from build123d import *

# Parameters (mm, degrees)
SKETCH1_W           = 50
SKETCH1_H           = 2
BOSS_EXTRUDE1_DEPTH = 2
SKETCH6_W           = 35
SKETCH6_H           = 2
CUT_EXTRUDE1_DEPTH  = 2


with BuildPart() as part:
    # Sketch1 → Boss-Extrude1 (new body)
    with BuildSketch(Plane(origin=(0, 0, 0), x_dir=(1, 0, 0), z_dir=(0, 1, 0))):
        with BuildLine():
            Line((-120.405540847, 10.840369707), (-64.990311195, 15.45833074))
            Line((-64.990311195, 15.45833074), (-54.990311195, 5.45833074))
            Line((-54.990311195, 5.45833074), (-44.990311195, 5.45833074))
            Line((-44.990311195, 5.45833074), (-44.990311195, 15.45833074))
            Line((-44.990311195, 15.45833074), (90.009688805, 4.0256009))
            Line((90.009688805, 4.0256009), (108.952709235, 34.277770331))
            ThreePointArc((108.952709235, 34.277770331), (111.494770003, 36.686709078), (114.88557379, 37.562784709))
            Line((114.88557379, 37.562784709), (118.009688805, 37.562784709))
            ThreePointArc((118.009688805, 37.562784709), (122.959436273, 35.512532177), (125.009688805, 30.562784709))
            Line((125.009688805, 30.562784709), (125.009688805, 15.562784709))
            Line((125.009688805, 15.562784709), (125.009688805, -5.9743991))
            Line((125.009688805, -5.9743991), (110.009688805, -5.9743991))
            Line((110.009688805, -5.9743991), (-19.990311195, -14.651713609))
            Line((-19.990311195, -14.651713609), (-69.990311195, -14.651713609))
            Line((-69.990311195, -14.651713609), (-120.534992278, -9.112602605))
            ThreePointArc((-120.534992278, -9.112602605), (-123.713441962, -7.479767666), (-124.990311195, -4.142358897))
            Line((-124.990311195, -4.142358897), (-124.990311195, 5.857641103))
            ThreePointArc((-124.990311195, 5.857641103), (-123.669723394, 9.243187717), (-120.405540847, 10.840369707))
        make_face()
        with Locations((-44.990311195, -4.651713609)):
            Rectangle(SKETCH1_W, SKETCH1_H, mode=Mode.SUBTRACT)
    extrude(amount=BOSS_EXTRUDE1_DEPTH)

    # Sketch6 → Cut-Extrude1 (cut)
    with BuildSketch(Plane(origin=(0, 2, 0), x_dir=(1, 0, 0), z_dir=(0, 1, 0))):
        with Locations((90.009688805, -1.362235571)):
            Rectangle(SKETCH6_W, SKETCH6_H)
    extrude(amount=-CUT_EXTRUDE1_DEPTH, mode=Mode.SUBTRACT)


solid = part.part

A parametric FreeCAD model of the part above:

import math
import FreeCAD as App
import Part
import Sketcher
from FreeCAD import Vector
Q = App.Units.Quantity


def add_polygon(sketch, points):
    """Adds a closed chain of lines whose ends are joined by coincident constraints."""
    first, n = sketch.GeometryCount, len(points)
    for a, b in zip(points, points[1:] + points[:1]):
        sketch.addGeometry(Part.LineSegment(App.Vector(*a, 0), App.Vector(*b, 0)), False)
    for i in range(n):
        sketch.addConstraint(Sketcher.Constraint("Coincident", first + i, 2, first + (i + 1) % n, 1))

doc = App.newDocument("Part")
body = doc.addObject("PartDesign::Body", "Body")

sketch1 = body.newObject("Sketcher::SketchObject", "Sketch")
sketch1.AttachmentSupport = (doc.getObject("XZ_Plane"), [""])
sketch1.MapMode = "FlatFace"
sketch1.addGeometry(Part.LineSegment(Vector(-64.990311, -15.458331, 0), Vector(-120.405541, -10.84037, 0)), False)
sketch1.addGeometry(Part.ArcOfCircle(Part.Circle(Vector(-119.990311, -5.857641, 0), Vector(0, 0, 1), 5), math.radians(180), math.radians(265.236332)), False)
sketch1.addGeometry(Part.LineSegment(Vector(-124.990311, -5.857641, 0), Vector(-124.990311, 4.142359, 0)), False)
sketch1.addGeometry(Part.ArcOfCircle(Part.Circle(Vector(-119.990311, 4.142359, 0), Vector(0, 0, 1), 5), math.radians(96.253997), math.radians(180)), False)
sketch1.addGeometry(Part.LineSegment(Vector(-120.534992, 9.112603, 0), Vector(-69.990311, 14.651714, 0)), False)
sketch1.addGeometry(Part.LineSegment(Vector(-69.990311, 14.651714, 0), Vector(-19.990311, 14.651714, 0)), False)
sketch1.addGeometry(Part.LineSegment(Vector(-19.990311, 14.651714, 0), Vector(110.009689, 5.974399, 0)), False)
sketch1.addGeometry(Part.LineSegment(Vector(110.009689, 5.974399, 0), Vector(125.009689, 5.974399, 0)), False)
sketch1.addGeometry(Part.LineSegment(Vector(125.009689, 5.974399, 0), Vector(125.009689, -30.562785, 0)), False)
sketch1.addGeometry(Part.ArcOfCircle(Part.Circle(Vector(118.009689, -30.562785, 0), Vector(0, 0, 1), 7), math.radians(-90), math.radians(0)), False)
sketch1.addGeometry(Part.LineSegment(Vector(118.009689, -37.562785, 0), Vector(114.885574, -37.562785, 0)), False)
sketch1.addGeometry(Part.ArcOfCircle(Part.Circle(Vector(114.885574, -30.562785, 0), Vector(0, 0, 1), 7), math.radians(-147.94641), math.radians(-90)), False)
sketch1.addGeometry(Part.LineSegment(Vector(108.952709, -34.27777, 0), Vector(90.009689, -4.025601, 0)), False)
sketch1.addGeometry(Part.LineSegment(Vector(90.009689, -4.025601, 0), Vector(-44.990311, -15.458331, 0)), False)
sketch1.addGeometry(Part.LineSegment(Vector(-44.990311, -15.458331, 0), Vector(-44.990311, -5.458331, 0)), False)
sketch1.addGeometry(Part.LineSegment(Vector(-44.990311, -5.458331, 0), Vector(-54.990311, -5.458331, 0)), False)
sketch1.addGeometry(Part.LineSegment(Vector(-54.990311, -5.458331, 0), Vector(-64.990311, -15.458331, 0)), False)
add_polygon(sketch1, [(-69.990311, 5.651714), (-69.990311, 3.651714), (-19.990311, 3.651714), (-19.990311, 5.651714)])
sketch1.addConstraint([
    Sketcher.Constraint("Tangent", 0, 2, 1, 2),
    Sketcher.Constraint("Tangent", 1, 1, 2, 1),
    Sketcher.Constraint("Tangent", 2, 2, 3, 2),
    Sketcher.Constraint("Tangent", 3, 1, 4, 1),
    Sketcher.Constraint("Coincident", 4, 2, 5, 1),
    Sketcher.Constraint("Coincident", 5, 2, 6, 1),
    Sketcher.Constraint("Coincident", 6, 2, 7, 1),
    Sketcher.Constraint("Coincident", 7, 2, 8, 1),
    Sketcher.Constraint("Tangent", 8, 2, 9, 2),
    Sketcher.Constraint("Tangent", 9, 1, 10, 1),
    Sketcher.Constraint("Tangent", 10, 2, 11, 2),
    Sketcher.Constraint("Tangent", 11, 1, 12, 1),
    Sketcher.Constraint("Coincident", 12, 2, 13, 1),
    Sketcher.Constraint("Coincident", 13, 2, 14, 1),
    Sketcher.Constraint("Coincident", 14, 2, 15, 1),
    Sketcher.Constraint("Coincident", 15, 2, 16, 1),
    Sketcher.Constraint("Coincident", 16, 2, 0, 1),
    Sketcher.Constraint("Vertical", 2),
    Sketcher.Constraint("Horizontal", 5),
    Sketcher.Constraint("Horizontal", 7),
    Sketcher.Constraint("Vertical", 8),
    Sketcher.Constraint("Horizontal", 10),
    Sketcher.Constraint("Vertical", 14),
    Sketcher.Constraint("Horizontal", 15),
    Sketcher.Constraint("Vertical", 17),
    Sketcher.Constraint("Horizontal", 18),
    Sketcher.Constraint("Vertical", 19),
    Sketcher.Constraint("Horizontal", 20),
    Sketcher.Constraint("Equal", 1, 3),
    Sketcher.Constraint("Equal", 9, 11),
    Sketcher.Constraint("Horizontal", 13, 2, 16, 2),
    Sketcher.Constraint("Vertical", 4, 2, 17, 2),
    Sketcher.Constraint("Vertical", 5, 2, 18, 2),
    Sketcher.Constraint("Equal", 15, 2),
    Sketcher.Constraint("Equal", 2, 14),
    Sketcher.Constraint("Radius", 1, Q("5 mm")),
    Sketcher.Constraint("Radius", 9, Q("7 mm")),
    Sketcher.Constraint("DistanceX", 5, 1, 5, 2, Q("50 mm")),
    Sketcher.Constraint("DistanceX", 7, 1, 7, 2, Q("15 mm")),
    Sketcher.Constraint("DistanceX", 15, 2, 15, 1, Q("10 mm")),
    Sketcher.Constraint("DistanceY", 17, 2, 17, 1, Q("2 mm")),
    Sketcher.Constraint("Angle", 16, Q("-135 deg")),
    Sketcher.Constraint("DistanceX", 1, 3, 9, 3, Q("238 mm")),
    Sketcher.Constraint("DistanceX", 3, 3, 4, 2, Q("50 mm")),
    Sketcher.Constraint("DistanceX", 12, 2, 6, 2, Q("20 mm")),
    Sketcher.Constraint("DistanceY", 12, 2, 6, 2, Q("10 mm")),
    Sketcher.Constraint("DistanceX", 13, 2, 5, 2, Q("25 mm")),
    Sketcher.Constraint("DistanceY", 17, 2, 4, 2, Q("11 mm")),
    Sketcher.Constraint("DistanceY", -1, 1, 6, 2, Q("5.974399 mm")),
    Sketcher.Constraint("DistanceY", 8, 2, 5, 2, Q("45.214498 mm")),
    Sketcher.Constraint("Distance", 12, Q("35.693582 mm")),
    Sketcher.Constraint("DistanceX", 10, 2, 10, 1, Q("3.124115 mm")),
    Sketcher.Constraint("DistanceX", 1, 3, -1, 1, Q("119.990311 mm")),
    Sketcher.Constraint("DistanceY", 1, 3, -1, 1, Q("5.857641 mm")),
    Sketcher.Constraint("DistanceX", 0, 2, -1, 1, Q("120.405541 mm")),
])
pad1 = body.newObject("PartDesign::Pad", "Pad")
pad1.Profile = sketch1
pad1.Length = 2
pad1.Reversed = True

sketch2 = body.newObject("Sketcher::SketchObject", "Sketch001")
sketch2.AttachmentSupport = (doc.getObject("XZ_Plane"), [""])
sketch2.MapMode = "FlatFace"
sketch2.AttachmentOffset = App.Placement(Vector(0, 0, -2), App.Rotation())
add_polygon(sketch2, [(72.509689, 0.362236), (72.509689, 2.362236), (107.509689, 2.362236), (107.509689, 0.362236)])
sketch2.addConstraint([
    Sketcher.Constraint("Vertical", 0),
    Sketcher.Constraint("Horizontal", 1),
    Sketcher.Constraint("Vertical", 2),
    Sketcher.Constraint("Horizontal", 3),
    Sketcher.Constraint("DistanceX", 1, 1, 1, 2, Q("35 mm")),
    Sketcher.Constraint("DistanceY", 0, 1, 0, 2, Q("2 mm")),
    Sketcher.Constraint("DistanceX", -1, 1, 0, 2, Q("72.509689 mm")),
    Sketcher.Constraint("DistanceY", -1, 1, 0, 2, Q("2.362236 mm")),
])
pocket1 = body.newObject("PartDesign::Pocket", "Pocket")
pocket1.Profile = sketch2
pocket1.Length = 2
pocket1.Reversed = True

doc.recompute()
